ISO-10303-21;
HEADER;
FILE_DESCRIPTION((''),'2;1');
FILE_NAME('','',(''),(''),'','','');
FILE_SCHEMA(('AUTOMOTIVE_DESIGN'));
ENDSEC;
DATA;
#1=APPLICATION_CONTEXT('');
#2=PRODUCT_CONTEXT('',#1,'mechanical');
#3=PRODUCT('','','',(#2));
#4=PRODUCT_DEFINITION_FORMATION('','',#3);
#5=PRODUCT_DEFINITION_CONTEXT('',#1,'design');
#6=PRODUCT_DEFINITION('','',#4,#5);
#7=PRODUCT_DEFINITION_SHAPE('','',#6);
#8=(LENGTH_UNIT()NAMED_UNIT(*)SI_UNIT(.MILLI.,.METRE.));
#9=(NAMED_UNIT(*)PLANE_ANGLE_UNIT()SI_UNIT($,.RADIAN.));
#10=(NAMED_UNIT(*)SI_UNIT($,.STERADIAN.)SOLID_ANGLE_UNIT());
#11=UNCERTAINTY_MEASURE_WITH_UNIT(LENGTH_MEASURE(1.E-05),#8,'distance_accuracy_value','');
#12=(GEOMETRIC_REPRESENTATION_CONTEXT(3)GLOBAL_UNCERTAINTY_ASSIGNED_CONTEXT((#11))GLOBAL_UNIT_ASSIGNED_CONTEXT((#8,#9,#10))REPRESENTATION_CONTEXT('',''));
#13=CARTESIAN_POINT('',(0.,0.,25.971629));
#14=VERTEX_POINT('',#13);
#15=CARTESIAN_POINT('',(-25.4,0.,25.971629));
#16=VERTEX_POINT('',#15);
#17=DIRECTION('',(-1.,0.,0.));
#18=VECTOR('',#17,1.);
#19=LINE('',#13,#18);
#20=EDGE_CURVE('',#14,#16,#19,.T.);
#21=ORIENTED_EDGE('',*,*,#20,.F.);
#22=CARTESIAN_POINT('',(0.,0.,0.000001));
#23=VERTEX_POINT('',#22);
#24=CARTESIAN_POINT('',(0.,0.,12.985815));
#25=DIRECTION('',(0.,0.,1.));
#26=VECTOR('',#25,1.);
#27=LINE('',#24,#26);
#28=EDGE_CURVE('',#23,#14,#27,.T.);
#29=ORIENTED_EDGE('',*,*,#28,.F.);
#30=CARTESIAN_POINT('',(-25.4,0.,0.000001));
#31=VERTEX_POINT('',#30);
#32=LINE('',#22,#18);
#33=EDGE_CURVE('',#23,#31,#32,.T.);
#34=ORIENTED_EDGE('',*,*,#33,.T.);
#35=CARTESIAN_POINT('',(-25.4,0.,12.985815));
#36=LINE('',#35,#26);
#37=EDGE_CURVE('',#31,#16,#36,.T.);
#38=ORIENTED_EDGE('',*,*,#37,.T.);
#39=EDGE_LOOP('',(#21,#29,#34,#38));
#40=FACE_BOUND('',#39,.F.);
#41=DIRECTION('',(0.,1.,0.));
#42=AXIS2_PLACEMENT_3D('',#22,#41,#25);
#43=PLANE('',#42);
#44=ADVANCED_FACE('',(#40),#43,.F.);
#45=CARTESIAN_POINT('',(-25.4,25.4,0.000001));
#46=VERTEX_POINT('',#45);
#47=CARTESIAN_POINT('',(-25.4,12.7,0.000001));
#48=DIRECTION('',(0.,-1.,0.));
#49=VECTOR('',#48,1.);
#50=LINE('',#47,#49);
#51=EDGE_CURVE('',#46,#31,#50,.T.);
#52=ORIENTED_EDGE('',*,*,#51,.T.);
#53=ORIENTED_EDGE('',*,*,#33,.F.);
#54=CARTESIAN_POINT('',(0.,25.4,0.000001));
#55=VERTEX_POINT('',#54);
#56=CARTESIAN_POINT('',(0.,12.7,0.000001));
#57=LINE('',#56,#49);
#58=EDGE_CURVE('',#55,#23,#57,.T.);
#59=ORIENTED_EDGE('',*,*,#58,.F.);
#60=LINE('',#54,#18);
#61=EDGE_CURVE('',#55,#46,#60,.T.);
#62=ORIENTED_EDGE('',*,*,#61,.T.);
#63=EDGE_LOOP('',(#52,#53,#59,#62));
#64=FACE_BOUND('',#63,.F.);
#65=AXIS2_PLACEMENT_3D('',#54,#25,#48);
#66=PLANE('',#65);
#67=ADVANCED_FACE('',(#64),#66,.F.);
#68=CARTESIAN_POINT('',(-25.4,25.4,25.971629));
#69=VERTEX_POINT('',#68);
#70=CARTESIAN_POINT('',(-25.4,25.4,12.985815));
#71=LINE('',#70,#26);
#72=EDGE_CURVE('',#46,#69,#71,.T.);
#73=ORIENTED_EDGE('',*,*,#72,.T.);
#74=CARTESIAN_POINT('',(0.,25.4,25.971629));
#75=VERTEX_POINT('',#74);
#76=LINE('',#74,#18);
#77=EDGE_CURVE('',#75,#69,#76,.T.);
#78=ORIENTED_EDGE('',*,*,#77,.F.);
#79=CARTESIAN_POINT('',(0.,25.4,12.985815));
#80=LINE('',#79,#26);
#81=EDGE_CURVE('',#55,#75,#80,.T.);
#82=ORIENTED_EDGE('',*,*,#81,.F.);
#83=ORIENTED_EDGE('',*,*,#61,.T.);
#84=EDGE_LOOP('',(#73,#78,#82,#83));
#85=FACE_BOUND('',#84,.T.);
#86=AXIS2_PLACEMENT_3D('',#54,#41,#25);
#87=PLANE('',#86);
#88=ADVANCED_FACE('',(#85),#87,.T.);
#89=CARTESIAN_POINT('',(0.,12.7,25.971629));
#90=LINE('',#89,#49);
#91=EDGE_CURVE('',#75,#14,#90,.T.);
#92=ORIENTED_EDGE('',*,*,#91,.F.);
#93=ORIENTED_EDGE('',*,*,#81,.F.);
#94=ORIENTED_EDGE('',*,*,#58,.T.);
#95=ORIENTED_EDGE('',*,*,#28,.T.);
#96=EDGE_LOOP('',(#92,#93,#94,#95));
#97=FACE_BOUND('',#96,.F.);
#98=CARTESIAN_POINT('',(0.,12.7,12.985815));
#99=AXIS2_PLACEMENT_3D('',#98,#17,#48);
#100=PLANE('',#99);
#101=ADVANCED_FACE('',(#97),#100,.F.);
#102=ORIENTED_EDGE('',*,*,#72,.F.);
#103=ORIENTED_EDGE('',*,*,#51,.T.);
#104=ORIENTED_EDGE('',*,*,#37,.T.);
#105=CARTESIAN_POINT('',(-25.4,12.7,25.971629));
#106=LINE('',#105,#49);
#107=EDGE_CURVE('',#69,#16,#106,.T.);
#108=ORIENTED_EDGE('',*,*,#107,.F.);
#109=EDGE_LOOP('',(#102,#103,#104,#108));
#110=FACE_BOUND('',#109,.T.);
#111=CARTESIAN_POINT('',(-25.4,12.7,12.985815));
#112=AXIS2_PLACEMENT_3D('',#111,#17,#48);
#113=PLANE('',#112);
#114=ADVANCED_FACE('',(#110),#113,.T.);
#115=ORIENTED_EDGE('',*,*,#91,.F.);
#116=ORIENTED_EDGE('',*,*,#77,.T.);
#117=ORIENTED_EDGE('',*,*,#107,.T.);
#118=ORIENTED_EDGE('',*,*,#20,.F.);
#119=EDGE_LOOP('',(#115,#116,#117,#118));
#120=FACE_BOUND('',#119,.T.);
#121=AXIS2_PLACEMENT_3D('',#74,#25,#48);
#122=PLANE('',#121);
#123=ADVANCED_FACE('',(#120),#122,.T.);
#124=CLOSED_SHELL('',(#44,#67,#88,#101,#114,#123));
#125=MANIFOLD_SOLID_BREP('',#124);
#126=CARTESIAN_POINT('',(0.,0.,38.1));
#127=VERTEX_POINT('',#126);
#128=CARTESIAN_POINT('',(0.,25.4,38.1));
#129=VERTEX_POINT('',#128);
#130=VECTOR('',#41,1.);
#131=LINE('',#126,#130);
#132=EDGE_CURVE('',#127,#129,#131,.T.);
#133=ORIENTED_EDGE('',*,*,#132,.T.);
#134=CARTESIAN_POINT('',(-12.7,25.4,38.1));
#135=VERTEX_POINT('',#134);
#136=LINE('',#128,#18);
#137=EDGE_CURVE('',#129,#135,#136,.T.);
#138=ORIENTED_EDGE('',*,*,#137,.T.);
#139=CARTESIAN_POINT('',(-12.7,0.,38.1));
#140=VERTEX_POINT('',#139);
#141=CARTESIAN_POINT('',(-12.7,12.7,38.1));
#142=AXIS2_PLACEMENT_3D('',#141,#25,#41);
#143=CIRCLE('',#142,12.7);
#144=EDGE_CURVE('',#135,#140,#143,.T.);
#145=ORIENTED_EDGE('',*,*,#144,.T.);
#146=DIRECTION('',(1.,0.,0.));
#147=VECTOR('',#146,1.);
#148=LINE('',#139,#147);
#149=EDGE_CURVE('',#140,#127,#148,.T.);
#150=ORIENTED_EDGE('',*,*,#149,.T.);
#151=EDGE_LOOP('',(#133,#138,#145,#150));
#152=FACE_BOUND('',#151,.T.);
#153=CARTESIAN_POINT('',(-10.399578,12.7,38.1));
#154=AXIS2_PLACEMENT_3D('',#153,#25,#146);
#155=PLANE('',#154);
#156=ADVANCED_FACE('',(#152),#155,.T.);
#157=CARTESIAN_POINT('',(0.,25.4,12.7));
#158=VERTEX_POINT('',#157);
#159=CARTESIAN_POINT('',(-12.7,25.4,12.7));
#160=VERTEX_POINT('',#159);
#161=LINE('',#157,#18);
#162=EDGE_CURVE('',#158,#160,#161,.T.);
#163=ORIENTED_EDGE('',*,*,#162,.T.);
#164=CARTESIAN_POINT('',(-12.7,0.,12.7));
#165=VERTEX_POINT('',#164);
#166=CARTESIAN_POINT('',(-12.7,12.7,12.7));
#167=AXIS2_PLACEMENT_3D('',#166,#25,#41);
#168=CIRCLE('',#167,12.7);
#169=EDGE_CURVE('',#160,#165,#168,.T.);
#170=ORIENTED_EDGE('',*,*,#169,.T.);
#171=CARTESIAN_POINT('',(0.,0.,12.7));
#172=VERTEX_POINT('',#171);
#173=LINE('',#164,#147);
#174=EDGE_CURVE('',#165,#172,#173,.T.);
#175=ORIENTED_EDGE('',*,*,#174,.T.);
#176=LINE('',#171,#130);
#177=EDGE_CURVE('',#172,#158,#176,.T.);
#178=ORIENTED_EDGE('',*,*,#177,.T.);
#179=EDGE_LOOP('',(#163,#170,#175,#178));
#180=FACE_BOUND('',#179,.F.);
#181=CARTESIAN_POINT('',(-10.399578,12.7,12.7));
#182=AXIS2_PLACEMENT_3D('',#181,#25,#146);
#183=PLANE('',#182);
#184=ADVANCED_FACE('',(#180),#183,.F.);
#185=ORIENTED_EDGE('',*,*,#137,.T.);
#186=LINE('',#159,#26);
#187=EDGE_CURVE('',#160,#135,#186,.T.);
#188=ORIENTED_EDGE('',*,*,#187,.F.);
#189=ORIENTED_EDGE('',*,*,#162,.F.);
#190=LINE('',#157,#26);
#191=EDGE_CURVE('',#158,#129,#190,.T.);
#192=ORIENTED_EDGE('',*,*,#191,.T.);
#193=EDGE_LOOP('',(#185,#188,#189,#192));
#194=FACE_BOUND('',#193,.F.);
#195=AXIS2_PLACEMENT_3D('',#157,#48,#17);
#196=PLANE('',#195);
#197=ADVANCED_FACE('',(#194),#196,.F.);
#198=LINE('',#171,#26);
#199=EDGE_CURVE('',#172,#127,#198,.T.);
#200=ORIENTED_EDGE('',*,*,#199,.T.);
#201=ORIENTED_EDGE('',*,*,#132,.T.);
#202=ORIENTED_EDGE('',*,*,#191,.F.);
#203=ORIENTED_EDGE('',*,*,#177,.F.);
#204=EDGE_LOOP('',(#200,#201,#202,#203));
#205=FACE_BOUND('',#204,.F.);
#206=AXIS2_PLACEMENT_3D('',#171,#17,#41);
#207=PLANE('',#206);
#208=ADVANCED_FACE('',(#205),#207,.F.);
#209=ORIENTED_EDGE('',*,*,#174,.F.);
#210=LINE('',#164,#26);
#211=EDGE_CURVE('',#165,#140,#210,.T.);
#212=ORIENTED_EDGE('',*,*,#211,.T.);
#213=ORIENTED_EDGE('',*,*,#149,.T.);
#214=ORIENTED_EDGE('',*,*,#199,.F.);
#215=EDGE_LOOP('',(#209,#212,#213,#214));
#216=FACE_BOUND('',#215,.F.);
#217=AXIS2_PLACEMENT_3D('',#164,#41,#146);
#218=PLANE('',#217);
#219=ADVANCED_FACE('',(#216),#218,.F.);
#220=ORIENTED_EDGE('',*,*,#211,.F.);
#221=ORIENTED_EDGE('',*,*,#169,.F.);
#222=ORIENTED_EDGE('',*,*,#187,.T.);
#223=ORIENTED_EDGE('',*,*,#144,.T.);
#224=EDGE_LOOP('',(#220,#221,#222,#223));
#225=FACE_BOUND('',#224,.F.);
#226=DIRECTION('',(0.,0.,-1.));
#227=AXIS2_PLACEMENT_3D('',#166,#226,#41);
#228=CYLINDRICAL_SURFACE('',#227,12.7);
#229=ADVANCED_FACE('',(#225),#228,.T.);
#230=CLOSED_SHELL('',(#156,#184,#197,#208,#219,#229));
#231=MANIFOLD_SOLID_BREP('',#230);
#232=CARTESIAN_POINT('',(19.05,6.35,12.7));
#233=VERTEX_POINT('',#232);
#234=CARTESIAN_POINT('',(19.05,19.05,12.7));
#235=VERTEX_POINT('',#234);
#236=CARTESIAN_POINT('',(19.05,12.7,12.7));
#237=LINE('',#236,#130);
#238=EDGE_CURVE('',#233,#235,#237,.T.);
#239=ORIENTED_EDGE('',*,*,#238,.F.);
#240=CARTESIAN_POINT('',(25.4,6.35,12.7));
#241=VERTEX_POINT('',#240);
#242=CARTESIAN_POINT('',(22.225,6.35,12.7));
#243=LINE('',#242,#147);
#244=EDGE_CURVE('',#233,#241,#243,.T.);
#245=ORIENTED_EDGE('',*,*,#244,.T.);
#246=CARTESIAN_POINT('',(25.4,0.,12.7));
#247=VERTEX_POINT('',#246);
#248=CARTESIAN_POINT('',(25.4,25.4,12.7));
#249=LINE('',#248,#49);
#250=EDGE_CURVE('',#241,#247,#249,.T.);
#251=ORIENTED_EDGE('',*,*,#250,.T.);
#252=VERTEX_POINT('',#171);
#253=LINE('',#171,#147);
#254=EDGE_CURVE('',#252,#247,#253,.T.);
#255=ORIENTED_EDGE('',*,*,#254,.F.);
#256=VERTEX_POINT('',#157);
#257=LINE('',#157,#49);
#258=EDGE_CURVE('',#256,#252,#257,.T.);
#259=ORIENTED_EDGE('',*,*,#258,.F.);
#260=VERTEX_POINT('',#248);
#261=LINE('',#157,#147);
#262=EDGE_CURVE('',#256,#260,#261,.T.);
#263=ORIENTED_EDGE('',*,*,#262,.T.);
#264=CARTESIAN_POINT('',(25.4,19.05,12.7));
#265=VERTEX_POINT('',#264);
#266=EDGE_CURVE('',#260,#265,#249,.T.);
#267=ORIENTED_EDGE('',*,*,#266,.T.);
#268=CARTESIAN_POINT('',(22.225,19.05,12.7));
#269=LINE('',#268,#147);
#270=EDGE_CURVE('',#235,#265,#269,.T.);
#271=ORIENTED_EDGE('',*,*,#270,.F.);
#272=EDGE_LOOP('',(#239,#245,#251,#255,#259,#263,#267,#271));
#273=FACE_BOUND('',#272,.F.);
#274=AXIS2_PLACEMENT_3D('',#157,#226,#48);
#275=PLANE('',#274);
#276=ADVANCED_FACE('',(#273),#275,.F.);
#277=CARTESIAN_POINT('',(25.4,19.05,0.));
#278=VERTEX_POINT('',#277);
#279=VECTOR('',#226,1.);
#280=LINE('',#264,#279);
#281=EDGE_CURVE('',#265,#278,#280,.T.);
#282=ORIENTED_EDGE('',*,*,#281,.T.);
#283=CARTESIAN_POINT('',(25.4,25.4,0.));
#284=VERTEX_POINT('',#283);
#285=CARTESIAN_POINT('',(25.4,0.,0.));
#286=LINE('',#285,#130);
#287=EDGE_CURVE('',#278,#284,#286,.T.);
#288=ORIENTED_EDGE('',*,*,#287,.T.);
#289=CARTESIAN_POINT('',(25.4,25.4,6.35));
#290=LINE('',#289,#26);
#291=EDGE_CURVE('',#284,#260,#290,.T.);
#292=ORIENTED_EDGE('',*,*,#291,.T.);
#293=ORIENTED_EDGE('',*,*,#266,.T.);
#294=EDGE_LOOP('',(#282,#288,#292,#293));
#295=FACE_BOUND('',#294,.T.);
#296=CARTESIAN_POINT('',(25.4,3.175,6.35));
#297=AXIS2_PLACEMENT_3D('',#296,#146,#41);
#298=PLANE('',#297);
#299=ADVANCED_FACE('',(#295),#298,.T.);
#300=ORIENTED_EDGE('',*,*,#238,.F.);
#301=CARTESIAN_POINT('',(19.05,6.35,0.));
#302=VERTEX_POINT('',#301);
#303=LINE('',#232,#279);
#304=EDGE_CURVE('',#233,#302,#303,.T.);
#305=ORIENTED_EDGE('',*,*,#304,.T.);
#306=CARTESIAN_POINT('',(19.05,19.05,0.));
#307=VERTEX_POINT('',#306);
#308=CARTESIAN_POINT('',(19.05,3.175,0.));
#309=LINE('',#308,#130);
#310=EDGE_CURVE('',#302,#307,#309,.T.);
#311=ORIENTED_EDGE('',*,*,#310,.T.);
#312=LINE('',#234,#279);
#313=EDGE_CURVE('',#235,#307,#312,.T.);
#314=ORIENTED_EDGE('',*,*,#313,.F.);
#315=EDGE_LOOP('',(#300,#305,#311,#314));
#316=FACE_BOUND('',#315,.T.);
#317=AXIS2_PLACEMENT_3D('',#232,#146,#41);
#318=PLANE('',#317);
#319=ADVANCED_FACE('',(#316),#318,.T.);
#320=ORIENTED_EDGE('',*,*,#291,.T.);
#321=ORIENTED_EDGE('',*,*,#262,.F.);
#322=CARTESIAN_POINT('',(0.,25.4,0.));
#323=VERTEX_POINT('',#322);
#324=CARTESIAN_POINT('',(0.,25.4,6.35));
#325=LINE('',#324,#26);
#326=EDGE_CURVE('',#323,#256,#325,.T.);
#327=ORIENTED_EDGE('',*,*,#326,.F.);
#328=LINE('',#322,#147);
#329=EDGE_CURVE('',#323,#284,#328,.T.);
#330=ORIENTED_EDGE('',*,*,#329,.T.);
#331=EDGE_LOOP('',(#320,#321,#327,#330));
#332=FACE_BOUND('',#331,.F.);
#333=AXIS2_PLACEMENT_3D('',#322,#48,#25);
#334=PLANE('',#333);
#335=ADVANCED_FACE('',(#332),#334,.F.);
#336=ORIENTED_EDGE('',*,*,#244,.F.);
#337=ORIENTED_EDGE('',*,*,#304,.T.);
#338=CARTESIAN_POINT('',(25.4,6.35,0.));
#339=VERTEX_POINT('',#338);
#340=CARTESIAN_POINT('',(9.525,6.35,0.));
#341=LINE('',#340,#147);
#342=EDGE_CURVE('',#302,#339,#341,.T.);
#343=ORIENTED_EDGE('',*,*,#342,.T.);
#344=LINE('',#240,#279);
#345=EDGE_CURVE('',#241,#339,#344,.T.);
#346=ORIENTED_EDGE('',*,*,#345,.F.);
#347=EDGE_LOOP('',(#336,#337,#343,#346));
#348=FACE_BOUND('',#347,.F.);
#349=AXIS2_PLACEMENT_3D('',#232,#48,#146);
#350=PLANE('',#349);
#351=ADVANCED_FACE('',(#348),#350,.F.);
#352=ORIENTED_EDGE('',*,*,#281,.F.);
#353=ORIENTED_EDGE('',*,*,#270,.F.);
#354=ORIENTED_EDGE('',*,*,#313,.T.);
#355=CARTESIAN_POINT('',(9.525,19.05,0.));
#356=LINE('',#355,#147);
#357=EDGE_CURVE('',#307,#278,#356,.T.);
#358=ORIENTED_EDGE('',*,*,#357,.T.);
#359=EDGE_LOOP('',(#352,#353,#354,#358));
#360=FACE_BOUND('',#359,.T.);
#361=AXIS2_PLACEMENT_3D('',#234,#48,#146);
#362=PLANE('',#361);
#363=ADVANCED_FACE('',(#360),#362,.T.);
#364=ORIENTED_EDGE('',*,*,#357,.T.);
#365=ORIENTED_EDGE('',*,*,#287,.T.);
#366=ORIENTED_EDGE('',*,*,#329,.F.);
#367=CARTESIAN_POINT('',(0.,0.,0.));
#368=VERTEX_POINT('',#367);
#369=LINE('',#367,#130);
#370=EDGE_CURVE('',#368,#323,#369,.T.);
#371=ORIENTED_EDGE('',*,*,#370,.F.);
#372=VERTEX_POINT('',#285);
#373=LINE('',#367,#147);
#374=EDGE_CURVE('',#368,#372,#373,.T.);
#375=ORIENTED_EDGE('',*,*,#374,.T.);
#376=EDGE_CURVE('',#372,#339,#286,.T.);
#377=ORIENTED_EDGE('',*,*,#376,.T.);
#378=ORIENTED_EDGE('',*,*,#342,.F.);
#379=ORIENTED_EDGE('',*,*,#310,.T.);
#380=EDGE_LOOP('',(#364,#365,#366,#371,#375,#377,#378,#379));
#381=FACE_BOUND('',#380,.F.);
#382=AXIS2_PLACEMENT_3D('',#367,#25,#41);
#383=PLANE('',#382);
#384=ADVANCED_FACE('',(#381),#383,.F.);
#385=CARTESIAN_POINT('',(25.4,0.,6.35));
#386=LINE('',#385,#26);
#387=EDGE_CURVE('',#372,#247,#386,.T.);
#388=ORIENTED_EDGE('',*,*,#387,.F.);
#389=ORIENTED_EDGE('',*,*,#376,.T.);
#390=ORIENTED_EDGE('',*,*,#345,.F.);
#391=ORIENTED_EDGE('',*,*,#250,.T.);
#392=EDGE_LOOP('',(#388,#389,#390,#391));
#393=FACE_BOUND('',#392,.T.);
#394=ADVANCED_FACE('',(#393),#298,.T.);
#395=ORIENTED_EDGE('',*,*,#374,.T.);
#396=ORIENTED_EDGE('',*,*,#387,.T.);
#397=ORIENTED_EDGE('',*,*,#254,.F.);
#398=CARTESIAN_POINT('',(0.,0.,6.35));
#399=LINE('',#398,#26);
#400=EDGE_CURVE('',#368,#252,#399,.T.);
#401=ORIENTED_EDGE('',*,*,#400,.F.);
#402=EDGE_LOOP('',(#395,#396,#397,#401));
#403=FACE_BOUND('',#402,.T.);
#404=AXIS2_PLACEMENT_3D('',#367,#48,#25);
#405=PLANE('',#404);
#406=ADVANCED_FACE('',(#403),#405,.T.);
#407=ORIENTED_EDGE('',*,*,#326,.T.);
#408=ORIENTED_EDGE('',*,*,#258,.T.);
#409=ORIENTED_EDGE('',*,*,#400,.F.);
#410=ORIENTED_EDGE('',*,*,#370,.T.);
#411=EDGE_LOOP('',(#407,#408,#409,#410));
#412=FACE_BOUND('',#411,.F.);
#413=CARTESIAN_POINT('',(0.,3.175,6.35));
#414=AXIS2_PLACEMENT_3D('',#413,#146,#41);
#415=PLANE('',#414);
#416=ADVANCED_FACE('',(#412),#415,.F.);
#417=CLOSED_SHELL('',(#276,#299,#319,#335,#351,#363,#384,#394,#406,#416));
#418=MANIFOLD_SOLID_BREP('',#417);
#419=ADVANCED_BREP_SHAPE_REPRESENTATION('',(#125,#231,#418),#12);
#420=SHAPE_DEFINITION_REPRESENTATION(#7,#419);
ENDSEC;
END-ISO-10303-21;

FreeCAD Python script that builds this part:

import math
import FreeCAD as App
import Part
import Sketcher

V = App.Vector
Q = App.Units.Quantity


def add_polygon(sketch, points):
    """Adds a closed chain of lines whose ends are joined by coincident constraints."""
    first, n = sketch.GeometryCount, len(points)
    for a, b in zip(points, points[1:] + points[:1]):
        sketch.addGeometry(Part.LineSegment(App.Vector(*a, 0), App.Vector(*b, 0)), False)
    for i in range(n):
        sketch.addConstraint(Sketcher.Constraint("Coincident", first + i, 2, first + (i + 1) % n, 1))

doc = App.newDocument("Part")
body = doc.addObject("PartDesign::Body", "Body")

# Sketch on YZ plane
sketch1 = doc.addObject("Sketcher::SketchObject", "Sketch")
body.addObject(sketch1)
sketch1.AttachmentSupport = (doc.YZ_Plane, [""])
sketch1.MapMode = "FlatFace"
add_polygon(sketch1, [(0, 13), (0, 0), (25, 0), (25, 13)])  # lines 0-3
sketch1.addConstraint([
    Sketcher.Constraint("Vertical", 0),
    Sketcher.Constraint("Horizontal", 1),
    Sketcher.Constraint("Vertical", 2),
    Sketcher.Constraint("Horizontal", 3),
    Sketcher.Constraint("Coincident", 0, 2, -1, 1),
    Sketcher.Constraint("DistanceX", 1, 1, 1, 2, Q("1 in")),
    Sketcher.Constraint("DistanceY", 0, 2, 0, 1, Q("0.5 in")),
])
pad1 = doc.addObject("PartDesign::Pad", "Pad")
body.addObject(pad1)
pad1.Profile = sketch1
pad1.Length = Q("1 in")

# Sketch on XY plane
sketch2 = doc.addObject("Sketcher::SketchObject", "Sketch001")
body.addObject(sketch2)
sketch2.AttachmentSupport = (doc.XY_Plane, [""])
sketch2.MapMode = "FlatFace"
sketch2.AttachmentOffset = App.Placement(V(0, 0, 0.5 * 25.4), App.Rotation())
add_polygon(sketch2, [(19, 19), (19, 6), (25, 6), (25, 19)])  # lines 0-3
sketch2.addConstraint([
    Sketcher.Constraint("Vertical", 0),
    Sketcher.Constraint("Horizontal", 1),
    Sketcher.Constraint("Vertical", 2),
    Sketcher.Constraint("Horizontal", 3),
    Sketcher.Constraint("DistanceY", 0, 2, 0, 1, Q("0.5 in")),
    Sketcher.Constraint("DistanceX", -1, 1, 1, 2, Q("1 in")),
    Sketcher.Constraint("DistanceX", 1, 1, 1, 2, Q("0.25 in")),
    Sketcher.Constraint("DistanceY", -1, 1, 0, 2, Q("0.25 in")),
])
pocket1 = doc.addObject("PartDesign::Pocket", "Pocket")
body.addObject(pocket1)
pocket1.Profile = sketch2
pocket1.Type = "ThroughAll"
body2 = doc.addObject("PartDesign::Body", "Body001")

# Sketch on XY plane
sketch3 = doc.addObject("Sketcher::SketchObject", "Sketch002")
body2.addObject(sketch3)
sketch3.AttachmentSupport = (doc.getObject("XY_Plane001"), [""])
sketch3.MapMode = "FlatFace"
sketch3.AttachmentOffset = App.Placement(V(0, 0, 0.5 * 25.4), App.Rotation())
sketch3.addGeometry([
    Part.LineSegment(V(-13, 0, 0), V(0, 0, 0)),
    Part.LineSegment(V(0, 0, 0), V(0, 25, 0)),
    Part.LineSegment(V(0, 25, 0), V(-13, 25, 0)),
    Part.ArcOfCircle(Part.Circle(V(-13, 13, 0), V(0, 0, 1), 13), math.radians(90), math.radians(270)),
], False)
sketch3.addConstraint([
    Sketcher.Constraint("Coincident", 0, 2, 1, 1),
    Sketcher.Constraint("Coincident", 1, 2, 2, 1),
    Sketcher.Constraint("Tangent", 2, 2, 3, 1),
    Sketcher.Constraint("Tangent", 3, 2, 0, 1),
    Sketcher.Constraint("Horizontal", 0),
    Sketcher.Constraint("Vertical", 1),
    Sketcher.Constraint("Horizontal", 2),
    Sketcher.Constraint("Coincident", 0, 2, -1, 1),
    Sketcher.Constraint("Radius", 3, Q("0.5 in")),
    Sketcher.Constraint("DistanceX", 0, 1, 0, 2, Q("0.5 in")),
])
pad2 = doc.addObject("PartDesign::Pad", "Pad001")
body2.addObject(pad2)
pad2.Profile = sketch3
pad2.Length = Q("1 in")
body3 = doc.addObject("PartDesign::Body", "Body002")

# Sketch on YZ plane
sketch4 = doc.addObject("Sketcher::SketchObject", "Sketch003")
body3.addObject(sketch4)
sketch4.AttachmentSupport = (doc.getObject("YZ_Plane002"), [""])
sketch4.MapMode = "FlatFace"
add_polygon(sketch4, [(25, 26), (25, 0), (0, 0), (0, 26)])  # lines 0-3
sketch4.addConstraint([
    Sketcher.Constraint("Vertical", 0),
    Sketcher.Constraint("Horizontal", 1),
    Sketcher.Constraint("Vertical", 2),
    Sketcher.Constraint("Horizontal", 3),
    Sketcher.Constraint("Coincident", 1, 2, -1, 1),
    Sketcher.Constraint("DistanceX", 1, 2, 1, 1, Q("1 in")),
    Sketcher.Constraint("DistanceY", 0, 2, 0, 1, Q("25.971629 mm")),
])
pad3 = doc.addObject("PartDesign::Pad", "Pad002")
body3.addObject(pad3)
pad3.Profile = sketch4
pad3.Length = Q("1 in")
pad3.Reversed = True

doc.recompute()
